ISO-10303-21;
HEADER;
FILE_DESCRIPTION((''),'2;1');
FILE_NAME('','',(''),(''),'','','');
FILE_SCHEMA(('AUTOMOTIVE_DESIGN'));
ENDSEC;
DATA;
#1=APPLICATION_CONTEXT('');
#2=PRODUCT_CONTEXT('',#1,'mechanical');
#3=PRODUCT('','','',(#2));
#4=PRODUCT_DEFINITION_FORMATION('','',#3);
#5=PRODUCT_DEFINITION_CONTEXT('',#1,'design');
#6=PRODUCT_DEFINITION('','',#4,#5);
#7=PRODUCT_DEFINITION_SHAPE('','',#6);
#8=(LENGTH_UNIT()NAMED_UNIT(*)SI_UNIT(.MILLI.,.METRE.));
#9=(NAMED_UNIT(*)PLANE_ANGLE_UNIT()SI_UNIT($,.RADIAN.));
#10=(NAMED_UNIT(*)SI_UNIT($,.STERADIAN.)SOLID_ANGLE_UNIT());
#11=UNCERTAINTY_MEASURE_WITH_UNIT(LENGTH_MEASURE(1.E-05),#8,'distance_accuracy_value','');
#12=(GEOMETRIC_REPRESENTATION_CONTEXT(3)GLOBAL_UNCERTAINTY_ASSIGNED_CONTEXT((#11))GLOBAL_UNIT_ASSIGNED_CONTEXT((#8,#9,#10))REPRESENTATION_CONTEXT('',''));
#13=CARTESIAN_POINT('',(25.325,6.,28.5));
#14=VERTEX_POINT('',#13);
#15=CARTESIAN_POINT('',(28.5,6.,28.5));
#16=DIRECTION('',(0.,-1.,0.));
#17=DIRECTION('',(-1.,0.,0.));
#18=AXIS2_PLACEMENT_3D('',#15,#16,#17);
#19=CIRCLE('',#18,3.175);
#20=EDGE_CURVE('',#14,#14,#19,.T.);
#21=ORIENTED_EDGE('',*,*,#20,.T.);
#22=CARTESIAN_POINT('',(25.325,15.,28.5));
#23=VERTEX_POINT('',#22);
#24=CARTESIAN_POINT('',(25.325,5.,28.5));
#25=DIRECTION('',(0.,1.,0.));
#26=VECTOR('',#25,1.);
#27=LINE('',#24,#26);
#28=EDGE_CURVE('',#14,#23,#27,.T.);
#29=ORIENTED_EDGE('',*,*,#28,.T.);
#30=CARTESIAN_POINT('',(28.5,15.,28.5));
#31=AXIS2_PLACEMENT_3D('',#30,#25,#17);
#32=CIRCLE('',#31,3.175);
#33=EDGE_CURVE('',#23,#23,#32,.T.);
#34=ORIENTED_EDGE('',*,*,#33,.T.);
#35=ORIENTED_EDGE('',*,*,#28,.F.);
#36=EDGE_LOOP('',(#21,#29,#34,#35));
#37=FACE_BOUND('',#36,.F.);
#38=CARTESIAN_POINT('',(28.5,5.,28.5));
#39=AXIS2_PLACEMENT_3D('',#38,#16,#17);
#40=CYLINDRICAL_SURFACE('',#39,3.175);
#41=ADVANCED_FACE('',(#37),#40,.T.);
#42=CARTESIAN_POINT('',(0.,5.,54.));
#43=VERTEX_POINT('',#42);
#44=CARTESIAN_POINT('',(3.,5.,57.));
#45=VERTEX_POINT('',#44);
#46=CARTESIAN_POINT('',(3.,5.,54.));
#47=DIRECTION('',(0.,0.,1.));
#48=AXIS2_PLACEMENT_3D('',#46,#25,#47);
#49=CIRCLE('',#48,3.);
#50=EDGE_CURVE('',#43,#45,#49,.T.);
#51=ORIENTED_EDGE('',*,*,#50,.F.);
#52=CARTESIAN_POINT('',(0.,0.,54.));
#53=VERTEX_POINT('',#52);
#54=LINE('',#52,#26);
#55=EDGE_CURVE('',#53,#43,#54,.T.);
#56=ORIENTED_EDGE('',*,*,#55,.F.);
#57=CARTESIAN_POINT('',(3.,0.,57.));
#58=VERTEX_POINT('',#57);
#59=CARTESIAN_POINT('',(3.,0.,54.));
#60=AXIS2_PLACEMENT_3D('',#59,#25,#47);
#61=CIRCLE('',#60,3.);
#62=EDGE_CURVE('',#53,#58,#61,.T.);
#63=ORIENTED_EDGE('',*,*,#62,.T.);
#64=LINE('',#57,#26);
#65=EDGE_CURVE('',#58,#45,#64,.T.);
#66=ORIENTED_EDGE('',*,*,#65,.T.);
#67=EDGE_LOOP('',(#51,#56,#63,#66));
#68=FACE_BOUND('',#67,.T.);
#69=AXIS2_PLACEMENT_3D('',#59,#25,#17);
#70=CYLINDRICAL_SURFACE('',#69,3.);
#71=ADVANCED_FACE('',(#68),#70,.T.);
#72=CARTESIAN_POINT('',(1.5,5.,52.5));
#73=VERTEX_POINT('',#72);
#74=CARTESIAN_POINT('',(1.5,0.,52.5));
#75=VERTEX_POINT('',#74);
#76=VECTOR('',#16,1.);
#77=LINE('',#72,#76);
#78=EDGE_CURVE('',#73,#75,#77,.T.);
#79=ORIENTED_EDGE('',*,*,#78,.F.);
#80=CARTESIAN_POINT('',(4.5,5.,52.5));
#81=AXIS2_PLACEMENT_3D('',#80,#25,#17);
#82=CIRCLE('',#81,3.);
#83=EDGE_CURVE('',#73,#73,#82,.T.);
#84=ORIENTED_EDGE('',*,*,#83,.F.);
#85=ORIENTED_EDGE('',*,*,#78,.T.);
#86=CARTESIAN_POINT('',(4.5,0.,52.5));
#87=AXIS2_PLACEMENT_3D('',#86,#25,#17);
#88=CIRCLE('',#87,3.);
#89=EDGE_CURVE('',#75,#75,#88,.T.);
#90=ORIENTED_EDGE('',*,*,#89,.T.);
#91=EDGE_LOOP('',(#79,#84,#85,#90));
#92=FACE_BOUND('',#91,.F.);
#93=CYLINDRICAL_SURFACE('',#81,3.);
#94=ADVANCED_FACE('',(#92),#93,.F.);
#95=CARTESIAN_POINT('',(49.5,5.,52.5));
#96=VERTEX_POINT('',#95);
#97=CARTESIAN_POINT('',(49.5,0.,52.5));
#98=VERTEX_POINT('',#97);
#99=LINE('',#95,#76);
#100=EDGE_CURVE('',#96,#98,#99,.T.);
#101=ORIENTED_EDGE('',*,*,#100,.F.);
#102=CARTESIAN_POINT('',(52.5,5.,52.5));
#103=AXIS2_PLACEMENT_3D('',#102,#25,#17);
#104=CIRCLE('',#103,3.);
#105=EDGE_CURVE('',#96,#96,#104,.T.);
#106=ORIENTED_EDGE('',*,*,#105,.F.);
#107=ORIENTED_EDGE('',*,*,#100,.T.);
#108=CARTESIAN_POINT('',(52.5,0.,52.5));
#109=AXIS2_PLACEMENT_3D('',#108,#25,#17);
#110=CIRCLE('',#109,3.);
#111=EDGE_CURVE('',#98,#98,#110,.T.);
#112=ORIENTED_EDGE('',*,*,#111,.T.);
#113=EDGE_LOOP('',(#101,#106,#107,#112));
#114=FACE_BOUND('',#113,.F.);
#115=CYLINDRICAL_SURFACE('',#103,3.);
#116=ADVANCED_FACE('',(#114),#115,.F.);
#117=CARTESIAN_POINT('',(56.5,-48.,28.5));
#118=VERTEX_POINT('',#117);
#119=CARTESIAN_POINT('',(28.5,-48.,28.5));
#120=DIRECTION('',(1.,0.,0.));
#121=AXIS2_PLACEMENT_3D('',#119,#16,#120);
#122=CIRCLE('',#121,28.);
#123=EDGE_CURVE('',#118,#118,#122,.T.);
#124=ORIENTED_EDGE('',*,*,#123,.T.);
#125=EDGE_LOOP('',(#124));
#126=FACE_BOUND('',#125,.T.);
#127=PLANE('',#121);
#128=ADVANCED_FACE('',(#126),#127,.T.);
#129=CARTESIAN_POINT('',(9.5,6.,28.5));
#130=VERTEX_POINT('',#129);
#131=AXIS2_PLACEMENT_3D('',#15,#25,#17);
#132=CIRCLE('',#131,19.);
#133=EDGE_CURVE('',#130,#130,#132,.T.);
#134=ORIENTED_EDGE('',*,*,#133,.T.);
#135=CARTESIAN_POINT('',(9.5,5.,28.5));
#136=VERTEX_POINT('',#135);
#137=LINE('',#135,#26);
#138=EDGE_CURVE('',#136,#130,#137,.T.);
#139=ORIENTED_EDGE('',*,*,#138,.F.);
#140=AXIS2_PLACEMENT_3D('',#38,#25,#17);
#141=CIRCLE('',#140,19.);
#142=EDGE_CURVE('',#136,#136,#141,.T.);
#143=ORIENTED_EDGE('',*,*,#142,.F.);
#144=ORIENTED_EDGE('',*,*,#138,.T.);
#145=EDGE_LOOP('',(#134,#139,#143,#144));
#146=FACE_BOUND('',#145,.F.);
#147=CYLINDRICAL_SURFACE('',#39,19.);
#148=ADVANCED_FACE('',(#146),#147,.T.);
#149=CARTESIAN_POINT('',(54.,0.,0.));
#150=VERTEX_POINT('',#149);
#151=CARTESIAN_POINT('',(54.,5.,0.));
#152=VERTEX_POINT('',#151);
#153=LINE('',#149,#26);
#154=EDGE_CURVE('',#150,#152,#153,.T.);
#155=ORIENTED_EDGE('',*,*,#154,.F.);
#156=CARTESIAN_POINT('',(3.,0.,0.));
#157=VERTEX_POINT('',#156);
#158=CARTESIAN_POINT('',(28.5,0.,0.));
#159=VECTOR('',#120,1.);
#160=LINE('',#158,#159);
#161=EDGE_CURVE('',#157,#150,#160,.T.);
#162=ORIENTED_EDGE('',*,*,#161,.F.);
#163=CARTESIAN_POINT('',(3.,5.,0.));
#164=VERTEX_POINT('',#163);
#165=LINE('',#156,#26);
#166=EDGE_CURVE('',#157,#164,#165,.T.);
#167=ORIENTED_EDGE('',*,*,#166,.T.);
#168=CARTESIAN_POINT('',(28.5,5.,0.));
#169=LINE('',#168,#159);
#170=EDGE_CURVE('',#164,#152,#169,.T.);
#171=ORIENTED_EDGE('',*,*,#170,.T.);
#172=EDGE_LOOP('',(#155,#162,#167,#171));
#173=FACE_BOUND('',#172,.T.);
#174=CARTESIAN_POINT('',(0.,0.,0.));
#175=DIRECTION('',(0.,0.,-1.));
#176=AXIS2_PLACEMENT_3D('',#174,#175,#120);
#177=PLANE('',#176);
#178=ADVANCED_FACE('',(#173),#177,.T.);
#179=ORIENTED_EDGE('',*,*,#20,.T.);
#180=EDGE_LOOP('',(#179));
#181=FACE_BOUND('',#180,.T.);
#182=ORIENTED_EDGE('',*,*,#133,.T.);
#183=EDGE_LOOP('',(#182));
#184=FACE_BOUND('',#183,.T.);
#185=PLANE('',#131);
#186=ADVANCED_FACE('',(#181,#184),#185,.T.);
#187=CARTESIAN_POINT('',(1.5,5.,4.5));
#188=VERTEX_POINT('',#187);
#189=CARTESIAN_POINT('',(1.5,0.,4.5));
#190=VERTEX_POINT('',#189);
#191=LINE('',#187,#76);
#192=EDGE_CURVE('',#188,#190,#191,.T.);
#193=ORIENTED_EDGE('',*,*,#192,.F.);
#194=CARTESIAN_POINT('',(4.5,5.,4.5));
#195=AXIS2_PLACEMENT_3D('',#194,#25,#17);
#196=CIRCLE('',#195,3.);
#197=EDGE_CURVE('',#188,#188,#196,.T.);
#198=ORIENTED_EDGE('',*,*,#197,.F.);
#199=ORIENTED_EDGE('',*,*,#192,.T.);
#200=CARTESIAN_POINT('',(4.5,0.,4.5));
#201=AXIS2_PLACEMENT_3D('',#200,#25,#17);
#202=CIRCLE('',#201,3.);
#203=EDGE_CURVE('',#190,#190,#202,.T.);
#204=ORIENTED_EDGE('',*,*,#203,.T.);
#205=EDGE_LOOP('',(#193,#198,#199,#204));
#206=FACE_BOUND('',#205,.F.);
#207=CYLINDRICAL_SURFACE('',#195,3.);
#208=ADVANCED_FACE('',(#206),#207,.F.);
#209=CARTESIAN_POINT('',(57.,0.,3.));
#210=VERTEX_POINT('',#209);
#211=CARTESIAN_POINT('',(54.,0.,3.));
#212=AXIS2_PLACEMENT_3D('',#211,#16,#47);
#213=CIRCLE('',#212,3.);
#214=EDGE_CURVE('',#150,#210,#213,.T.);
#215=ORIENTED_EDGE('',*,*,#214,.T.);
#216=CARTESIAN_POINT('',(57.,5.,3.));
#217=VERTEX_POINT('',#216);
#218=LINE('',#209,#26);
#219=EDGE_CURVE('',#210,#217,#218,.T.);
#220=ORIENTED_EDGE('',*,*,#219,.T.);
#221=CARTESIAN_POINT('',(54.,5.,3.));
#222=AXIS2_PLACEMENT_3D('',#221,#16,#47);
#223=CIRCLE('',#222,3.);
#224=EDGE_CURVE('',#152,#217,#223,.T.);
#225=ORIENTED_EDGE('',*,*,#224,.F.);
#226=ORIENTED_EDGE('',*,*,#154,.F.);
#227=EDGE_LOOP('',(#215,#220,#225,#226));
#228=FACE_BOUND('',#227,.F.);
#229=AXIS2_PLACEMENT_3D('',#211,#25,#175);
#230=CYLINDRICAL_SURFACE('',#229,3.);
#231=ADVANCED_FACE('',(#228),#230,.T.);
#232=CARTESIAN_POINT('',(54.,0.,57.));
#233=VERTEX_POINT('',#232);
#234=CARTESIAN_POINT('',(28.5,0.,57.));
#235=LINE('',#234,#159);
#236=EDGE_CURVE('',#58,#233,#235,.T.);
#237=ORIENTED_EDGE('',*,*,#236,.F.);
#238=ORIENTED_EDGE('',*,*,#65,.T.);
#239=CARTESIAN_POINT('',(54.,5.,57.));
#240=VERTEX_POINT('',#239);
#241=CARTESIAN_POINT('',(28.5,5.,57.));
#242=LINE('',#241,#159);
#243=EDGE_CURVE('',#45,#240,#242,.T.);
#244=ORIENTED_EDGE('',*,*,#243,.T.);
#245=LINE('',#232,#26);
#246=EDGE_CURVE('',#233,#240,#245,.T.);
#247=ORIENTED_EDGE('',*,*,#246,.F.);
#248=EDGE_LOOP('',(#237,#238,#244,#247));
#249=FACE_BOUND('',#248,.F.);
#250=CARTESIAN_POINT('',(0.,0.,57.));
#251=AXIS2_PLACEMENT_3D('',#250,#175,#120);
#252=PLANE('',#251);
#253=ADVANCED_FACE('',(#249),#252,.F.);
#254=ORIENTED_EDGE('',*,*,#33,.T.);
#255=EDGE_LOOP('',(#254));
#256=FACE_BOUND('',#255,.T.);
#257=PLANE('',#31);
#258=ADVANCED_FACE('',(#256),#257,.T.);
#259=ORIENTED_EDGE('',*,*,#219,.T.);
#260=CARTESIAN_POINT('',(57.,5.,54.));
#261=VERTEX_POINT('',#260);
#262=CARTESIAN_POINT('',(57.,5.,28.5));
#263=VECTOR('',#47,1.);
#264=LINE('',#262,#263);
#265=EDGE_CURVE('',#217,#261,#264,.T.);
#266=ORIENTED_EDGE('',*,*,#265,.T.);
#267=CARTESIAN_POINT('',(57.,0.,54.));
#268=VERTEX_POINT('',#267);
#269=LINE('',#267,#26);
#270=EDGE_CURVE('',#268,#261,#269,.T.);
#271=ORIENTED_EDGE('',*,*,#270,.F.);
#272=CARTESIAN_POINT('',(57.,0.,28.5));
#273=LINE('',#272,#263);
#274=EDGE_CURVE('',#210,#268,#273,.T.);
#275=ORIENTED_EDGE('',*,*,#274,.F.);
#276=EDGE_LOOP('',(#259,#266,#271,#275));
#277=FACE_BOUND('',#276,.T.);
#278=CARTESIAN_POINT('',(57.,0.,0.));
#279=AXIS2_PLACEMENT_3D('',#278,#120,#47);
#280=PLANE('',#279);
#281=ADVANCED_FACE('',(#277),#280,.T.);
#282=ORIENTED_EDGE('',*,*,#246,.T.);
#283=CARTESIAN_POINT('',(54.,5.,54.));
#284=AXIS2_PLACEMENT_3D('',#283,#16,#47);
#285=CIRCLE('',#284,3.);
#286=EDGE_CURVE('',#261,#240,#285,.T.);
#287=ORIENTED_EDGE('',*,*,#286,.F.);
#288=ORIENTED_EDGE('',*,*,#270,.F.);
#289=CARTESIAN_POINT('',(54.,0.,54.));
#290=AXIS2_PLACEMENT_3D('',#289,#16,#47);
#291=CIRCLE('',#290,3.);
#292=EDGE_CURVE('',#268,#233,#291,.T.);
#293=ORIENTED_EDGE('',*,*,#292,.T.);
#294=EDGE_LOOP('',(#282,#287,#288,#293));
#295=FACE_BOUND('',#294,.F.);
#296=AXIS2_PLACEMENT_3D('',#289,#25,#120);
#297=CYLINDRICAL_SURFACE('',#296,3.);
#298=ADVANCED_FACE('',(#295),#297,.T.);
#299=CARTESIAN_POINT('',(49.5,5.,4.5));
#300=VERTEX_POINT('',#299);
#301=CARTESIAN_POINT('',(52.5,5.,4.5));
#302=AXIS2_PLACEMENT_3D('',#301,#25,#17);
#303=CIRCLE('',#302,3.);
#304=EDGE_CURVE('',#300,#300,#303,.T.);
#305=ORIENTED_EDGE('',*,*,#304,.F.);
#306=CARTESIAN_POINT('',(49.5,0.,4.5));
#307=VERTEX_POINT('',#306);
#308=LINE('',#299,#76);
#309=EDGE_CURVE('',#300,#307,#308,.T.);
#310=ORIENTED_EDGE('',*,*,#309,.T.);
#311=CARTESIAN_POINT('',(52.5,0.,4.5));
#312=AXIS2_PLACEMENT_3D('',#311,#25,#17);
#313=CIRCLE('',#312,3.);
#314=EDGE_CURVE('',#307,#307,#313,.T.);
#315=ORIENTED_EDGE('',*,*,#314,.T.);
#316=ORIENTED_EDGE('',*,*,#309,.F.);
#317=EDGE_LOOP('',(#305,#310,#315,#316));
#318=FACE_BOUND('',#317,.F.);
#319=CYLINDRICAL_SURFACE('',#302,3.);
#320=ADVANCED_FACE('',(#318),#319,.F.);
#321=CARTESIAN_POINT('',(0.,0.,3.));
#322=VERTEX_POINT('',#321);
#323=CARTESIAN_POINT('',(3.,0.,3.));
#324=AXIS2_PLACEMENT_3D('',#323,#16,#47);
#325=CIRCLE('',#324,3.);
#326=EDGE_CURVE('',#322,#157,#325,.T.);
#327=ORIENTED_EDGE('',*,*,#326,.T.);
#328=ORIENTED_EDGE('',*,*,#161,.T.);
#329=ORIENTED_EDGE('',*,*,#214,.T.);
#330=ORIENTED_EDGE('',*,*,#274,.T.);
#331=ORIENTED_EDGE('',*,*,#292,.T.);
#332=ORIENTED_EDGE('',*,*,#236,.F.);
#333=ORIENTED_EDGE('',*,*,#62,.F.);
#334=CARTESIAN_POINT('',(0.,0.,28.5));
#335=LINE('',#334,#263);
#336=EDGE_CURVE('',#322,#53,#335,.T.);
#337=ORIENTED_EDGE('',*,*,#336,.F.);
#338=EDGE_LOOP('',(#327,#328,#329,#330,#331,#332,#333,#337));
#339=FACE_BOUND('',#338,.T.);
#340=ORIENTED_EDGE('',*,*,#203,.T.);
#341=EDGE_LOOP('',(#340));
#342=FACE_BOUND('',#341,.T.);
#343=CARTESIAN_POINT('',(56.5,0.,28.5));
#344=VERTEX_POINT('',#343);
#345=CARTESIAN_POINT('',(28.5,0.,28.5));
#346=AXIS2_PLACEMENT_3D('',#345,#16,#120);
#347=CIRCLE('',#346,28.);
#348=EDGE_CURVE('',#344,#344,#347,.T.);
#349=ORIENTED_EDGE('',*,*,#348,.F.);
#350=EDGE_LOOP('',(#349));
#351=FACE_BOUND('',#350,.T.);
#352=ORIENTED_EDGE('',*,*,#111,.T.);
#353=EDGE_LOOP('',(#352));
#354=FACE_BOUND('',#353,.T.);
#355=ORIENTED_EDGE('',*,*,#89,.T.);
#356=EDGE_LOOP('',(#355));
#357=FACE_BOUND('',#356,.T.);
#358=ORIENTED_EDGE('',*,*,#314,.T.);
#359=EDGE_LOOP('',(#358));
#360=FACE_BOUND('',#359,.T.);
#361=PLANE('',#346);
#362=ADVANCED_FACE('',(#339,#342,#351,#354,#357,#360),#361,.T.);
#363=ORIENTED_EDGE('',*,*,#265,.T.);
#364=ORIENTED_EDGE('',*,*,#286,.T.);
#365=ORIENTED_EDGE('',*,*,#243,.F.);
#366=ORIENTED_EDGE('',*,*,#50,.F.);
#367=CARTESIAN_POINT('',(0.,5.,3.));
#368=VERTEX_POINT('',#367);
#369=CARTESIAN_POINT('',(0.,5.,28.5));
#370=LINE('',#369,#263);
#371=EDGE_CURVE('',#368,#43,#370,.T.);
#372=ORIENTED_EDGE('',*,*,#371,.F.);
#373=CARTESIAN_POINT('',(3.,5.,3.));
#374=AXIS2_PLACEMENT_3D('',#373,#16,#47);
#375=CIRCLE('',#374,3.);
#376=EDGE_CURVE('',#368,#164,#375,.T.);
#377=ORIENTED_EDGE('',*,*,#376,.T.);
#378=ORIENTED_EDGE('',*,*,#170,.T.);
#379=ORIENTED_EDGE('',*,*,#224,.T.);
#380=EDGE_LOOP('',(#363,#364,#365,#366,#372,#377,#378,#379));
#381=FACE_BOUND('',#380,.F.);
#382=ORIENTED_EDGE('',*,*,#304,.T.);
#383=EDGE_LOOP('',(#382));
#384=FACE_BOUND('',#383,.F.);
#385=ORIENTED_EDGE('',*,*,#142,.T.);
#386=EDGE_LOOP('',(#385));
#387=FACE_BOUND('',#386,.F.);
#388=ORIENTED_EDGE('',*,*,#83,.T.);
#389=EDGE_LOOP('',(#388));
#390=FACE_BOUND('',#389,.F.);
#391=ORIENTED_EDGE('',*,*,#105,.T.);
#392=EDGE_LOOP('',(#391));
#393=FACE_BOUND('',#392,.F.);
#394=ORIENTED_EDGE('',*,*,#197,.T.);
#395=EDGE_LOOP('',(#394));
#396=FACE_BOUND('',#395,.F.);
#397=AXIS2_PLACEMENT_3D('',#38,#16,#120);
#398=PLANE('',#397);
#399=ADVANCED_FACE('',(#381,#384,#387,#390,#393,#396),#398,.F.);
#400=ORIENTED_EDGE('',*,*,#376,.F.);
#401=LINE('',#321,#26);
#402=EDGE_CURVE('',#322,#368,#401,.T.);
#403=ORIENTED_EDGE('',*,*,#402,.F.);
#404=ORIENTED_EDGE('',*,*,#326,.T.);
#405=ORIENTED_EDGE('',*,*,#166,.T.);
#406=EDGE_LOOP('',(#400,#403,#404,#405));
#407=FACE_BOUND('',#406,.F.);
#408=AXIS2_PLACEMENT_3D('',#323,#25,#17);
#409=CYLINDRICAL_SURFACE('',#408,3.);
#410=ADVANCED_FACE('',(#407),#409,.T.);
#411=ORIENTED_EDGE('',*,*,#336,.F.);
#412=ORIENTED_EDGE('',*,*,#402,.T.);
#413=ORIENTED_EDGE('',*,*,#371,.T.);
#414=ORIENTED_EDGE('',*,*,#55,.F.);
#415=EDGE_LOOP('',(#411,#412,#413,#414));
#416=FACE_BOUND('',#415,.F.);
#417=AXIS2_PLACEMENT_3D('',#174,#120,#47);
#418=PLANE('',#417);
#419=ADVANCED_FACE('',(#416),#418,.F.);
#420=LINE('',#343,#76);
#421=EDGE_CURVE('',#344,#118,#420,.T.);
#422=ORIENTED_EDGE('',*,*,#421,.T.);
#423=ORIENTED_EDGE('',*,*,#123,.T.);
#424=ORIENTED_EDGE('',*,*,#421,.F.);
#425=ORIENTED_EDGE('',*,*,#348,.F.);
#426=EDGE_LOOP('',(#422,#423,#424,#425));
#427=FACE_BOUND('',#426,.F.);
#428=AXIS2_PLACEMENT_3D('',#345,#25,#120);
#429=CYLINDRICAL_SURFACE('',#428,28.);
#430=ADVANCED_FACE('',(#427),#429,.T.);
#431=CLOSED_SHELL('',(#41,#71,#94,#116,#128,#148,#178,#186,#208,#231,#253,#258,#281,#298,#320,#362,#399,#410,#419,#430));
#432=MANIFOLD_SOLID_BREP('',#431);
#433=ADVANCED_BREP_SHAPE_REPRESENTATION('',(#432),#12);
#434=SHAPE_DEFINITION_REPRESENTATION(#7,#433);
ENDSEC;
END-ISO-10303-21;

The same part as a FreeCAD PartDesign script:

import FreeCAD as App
import Part
import Sketcher
from FreeCAD import Vector


def edges_at(feature, points):
    """Names of the edges that pass closest to the given points."""
    edges = feature.Shape.Edges
    near = lambda p: min(range(len(edges)), key=lambda i: edges[i].distToShape(Part.Vertex(*p))[0])
    return sorted({f"Edge{near(p) + 1}" for p in points})

doc = App.newDocument("Part")
body = doc.addObject("PartDesign::Body", "Body")

# Sketch on XZ plane
sketch1 = doc.addObject("Sketcher::SketchObject", "Sketch")
body.addObject(sketch1)
sketch1.AttachmentSupport = (doc.XZ_Plane, [""])
sketch1.MapMode = "FlatFace"
sketch1.addGeometry([
    Part.LineSegment(Vector(0, 57, 0), Vector(0, 0, 0)),
    Part.LineSegment(Vector(0, 0, 0), Vector(57, 0, 0)),
    Part.LineSegment(Vector(57, 0, 0), Vector(57, 57, 0)),
    Part.LineSegment(Vector(57, 57, 0), Vector(0, 57, 0)),
], False)
sketch1.addConstraint([
    Sketcher.Constraint("Coincident", 0, 2, 1, 1),
    Sketcher.Constraint("Coincident", 1, 2, 2, 1),
    Sketcher.Constraint("Coincident", 2, 2, 3, 1),
    Sketcher.Constraint("Coincident", 3, 2, 0, 1),
    Sketcher.Constraint("Vertical", 0),
    Sketcher.Constraint("Horizontal", 1),
    Sketcher.Constraint("Vertical", 2),
    Sketcher.Constraint("Horizontal", 3),
    Sketcher.Constraint("Coincident", 0, 2, -1, 1),
    Sketcher.Constraint("Equal", 3, 0),
    Sketcher.Constraint("DistanceX", 1, 1, 1, 2, 57.0),
])
pad1 = doc.addObject("PartDesign::Pad", "Pad")
body.addObject(pad1)
pad1.Profile = sketch1
pad1.Length = 5
pad1.Reversed = True
doc.recompute()

fillet = doc.addObject("PartDesign::Fillet", "Fillet")
body.addObject(fillet)
fillet.Base = (pad1, edges_at(pad1, [
    (0, 2.5, 0),
    (57, 2.5, 0),
    (57, 2.5, 57),
    (0, 2.5, 57),
]))
fillet.Radius = 3

# Sketch on XZ plane
sketch2 = doc.addObject("Sketcher::SketchObject", "Sketch001")
body.addObject(sketch2)
sketch2.AttachmentSupport = (doc.XZ_Plane, [""])
sketch2.MapMode = "FlatFace"
sketch2.addGeometry(Part.Circle(Vector(28, 28, 0), Vector(0, 0, 1), 28), False)
sketch2.addConstraint([
    Sketcher.Constraint("Diameter", 0, 56.0),
    Sketcher.Constraint("DistanceX", -1, 1, 0, 3, 28.5),
    Sketcher.Constraint("DistanceY", -1, 1, 0, 3, 28.5),
])
pad2 = doc.addObject("PartDesign::Pad", "Pad001")
body.addObject(pad2)
pad2.Profile = sketch2
pad2.Length = 48

# Sketch on XZ plane
sketch3 = doc.addObject("Sketcher::SketchObject", "Sketch002")
body.addObject(sketch3)
sketch3.AttachmentSupport = (doc.XZ_Plane, [""])
sketch3.MapMode = "FlatFace"
sketch3.AttachmentOffset = App.Placement(Vector(0, 0, -5), App.Rotation())
sketch3.addGeometry(Part.Circle(Vector(28.5, 28.5, 0), Vector(0, 0, 1), 3.2), False)
sketch3.addConstraint([
    Sketcher.Constraint("Diameter", 0, 6.35),
    Sketcher.Constraint("DistanceX", -1, 1, 0, 3, 28.5),
    Sketcher.Constraint("DistanceY", -1, 1, 0, 3, 28.5),
])
pad3 = doc.addObject("PartDesign::Pad", "Pad002")
body.addObject(pad3)
pad3.Profile = sketch3
pad3.Length = 10
pad3.Reversed = True

# Sketch on XZ plane
sketch4 = doc.addObject("Sketcher::SketchObject", "Sketch003")
body.addObject(sketch4)
sketch4.AttachmentSupport = (doc.XZ_Plane, [""])
sketch4.MapMode = "FlatFace"
sketch4.AttachmentOffset = App.Placement(Vector(0, 0, -5), App.Rotation())
sketch4.addGeometry(Part.Circle(Vector(28, 28, 0), Vector(0, 0, 1), 19), False)
sketch4.addConstraint([
    Sketcher.Constraint("Diameter", 0, 38.0),
    Sketcher.Constraint("DistanceX", -1, 1, 0, 3, 28.5),
    Sketcher.Constraint("DistanceY", -1, 1, 0, 3, 28.5),
])
pad4 = doc.addObject("PartDesign::Pad", "Pad003")
body.addObject(pad4)
pad4.Profile = sketch4
pad4.Length = 1
pad4.Reversed = True

# Sketch on XZ plane
sketch5 = doc.addObject("Sketcher::SketchObject", "Sketch004")
body.addObject(sketch5)
sketch5.AttachmentSupport = (doc.XZ_Plane, [""])
sketch5.MapMode = "FlatFace"
sketch5.AttachmentOffset = App.Placement(Vector(0, 0, -5), App.Rotation())
sketch5.addGeometry([
    Part.Circle(Vector(52.5, 52.5, 0), Vector(0, 0, 1), 3),
    Part.Circle(Vector(4.5, 52.5, 0), Vector(0, 0, 1), 3),
    Part.Circle(Vector(52.5, 4.5, 0), Vector(0, 0, 1), 3),
    Part.Circle(Vector(4.5, 4.5, 0), Vector(0, 0, 1), 3),
], False)
sketch5.addConstraint([
    Sketcher.Constraint("Equal", 0, 1),
    Sketcher.Constraint("Equal", 1, 2),
    Sketcher.Constraint("Equal", 2, 3),
    Sketcher.Constraint("Horizontal", 0, 3, 1, 3),
    Sketcher.Constraint("Horizontal", 2, 3, 3, 3),
    Sketcher.Constraint("Vertical", 0, 3, 2, 3),
    Sketcher.Constraint("Vertical", 1, 3, 3, 3),
    Sketcher.Constraint("Diameter", 0, 6.0),
    Sketcher.Constraint("DistanceX", 1, 3, 0, 3, 48.0),
    Sketcher.Constraint("DistanceY", 2, 3, 0, 3, 48.0),
    Sketcher.Constraint("DistanceX", -1, 1, 0, 3, 52.5),
    Sketcher.Constraint("DistanceY", -1, 1, 0, 3, 52.5),
])
pocket1 = doc.addObject("PartDesign::Pocket", "Pocket")
body.addObject(pocket1)
pocket1.Profile = sketch5
pocket1.Type = "ThroughAll"
pocket1.Reversed = True

doc.recompute()
